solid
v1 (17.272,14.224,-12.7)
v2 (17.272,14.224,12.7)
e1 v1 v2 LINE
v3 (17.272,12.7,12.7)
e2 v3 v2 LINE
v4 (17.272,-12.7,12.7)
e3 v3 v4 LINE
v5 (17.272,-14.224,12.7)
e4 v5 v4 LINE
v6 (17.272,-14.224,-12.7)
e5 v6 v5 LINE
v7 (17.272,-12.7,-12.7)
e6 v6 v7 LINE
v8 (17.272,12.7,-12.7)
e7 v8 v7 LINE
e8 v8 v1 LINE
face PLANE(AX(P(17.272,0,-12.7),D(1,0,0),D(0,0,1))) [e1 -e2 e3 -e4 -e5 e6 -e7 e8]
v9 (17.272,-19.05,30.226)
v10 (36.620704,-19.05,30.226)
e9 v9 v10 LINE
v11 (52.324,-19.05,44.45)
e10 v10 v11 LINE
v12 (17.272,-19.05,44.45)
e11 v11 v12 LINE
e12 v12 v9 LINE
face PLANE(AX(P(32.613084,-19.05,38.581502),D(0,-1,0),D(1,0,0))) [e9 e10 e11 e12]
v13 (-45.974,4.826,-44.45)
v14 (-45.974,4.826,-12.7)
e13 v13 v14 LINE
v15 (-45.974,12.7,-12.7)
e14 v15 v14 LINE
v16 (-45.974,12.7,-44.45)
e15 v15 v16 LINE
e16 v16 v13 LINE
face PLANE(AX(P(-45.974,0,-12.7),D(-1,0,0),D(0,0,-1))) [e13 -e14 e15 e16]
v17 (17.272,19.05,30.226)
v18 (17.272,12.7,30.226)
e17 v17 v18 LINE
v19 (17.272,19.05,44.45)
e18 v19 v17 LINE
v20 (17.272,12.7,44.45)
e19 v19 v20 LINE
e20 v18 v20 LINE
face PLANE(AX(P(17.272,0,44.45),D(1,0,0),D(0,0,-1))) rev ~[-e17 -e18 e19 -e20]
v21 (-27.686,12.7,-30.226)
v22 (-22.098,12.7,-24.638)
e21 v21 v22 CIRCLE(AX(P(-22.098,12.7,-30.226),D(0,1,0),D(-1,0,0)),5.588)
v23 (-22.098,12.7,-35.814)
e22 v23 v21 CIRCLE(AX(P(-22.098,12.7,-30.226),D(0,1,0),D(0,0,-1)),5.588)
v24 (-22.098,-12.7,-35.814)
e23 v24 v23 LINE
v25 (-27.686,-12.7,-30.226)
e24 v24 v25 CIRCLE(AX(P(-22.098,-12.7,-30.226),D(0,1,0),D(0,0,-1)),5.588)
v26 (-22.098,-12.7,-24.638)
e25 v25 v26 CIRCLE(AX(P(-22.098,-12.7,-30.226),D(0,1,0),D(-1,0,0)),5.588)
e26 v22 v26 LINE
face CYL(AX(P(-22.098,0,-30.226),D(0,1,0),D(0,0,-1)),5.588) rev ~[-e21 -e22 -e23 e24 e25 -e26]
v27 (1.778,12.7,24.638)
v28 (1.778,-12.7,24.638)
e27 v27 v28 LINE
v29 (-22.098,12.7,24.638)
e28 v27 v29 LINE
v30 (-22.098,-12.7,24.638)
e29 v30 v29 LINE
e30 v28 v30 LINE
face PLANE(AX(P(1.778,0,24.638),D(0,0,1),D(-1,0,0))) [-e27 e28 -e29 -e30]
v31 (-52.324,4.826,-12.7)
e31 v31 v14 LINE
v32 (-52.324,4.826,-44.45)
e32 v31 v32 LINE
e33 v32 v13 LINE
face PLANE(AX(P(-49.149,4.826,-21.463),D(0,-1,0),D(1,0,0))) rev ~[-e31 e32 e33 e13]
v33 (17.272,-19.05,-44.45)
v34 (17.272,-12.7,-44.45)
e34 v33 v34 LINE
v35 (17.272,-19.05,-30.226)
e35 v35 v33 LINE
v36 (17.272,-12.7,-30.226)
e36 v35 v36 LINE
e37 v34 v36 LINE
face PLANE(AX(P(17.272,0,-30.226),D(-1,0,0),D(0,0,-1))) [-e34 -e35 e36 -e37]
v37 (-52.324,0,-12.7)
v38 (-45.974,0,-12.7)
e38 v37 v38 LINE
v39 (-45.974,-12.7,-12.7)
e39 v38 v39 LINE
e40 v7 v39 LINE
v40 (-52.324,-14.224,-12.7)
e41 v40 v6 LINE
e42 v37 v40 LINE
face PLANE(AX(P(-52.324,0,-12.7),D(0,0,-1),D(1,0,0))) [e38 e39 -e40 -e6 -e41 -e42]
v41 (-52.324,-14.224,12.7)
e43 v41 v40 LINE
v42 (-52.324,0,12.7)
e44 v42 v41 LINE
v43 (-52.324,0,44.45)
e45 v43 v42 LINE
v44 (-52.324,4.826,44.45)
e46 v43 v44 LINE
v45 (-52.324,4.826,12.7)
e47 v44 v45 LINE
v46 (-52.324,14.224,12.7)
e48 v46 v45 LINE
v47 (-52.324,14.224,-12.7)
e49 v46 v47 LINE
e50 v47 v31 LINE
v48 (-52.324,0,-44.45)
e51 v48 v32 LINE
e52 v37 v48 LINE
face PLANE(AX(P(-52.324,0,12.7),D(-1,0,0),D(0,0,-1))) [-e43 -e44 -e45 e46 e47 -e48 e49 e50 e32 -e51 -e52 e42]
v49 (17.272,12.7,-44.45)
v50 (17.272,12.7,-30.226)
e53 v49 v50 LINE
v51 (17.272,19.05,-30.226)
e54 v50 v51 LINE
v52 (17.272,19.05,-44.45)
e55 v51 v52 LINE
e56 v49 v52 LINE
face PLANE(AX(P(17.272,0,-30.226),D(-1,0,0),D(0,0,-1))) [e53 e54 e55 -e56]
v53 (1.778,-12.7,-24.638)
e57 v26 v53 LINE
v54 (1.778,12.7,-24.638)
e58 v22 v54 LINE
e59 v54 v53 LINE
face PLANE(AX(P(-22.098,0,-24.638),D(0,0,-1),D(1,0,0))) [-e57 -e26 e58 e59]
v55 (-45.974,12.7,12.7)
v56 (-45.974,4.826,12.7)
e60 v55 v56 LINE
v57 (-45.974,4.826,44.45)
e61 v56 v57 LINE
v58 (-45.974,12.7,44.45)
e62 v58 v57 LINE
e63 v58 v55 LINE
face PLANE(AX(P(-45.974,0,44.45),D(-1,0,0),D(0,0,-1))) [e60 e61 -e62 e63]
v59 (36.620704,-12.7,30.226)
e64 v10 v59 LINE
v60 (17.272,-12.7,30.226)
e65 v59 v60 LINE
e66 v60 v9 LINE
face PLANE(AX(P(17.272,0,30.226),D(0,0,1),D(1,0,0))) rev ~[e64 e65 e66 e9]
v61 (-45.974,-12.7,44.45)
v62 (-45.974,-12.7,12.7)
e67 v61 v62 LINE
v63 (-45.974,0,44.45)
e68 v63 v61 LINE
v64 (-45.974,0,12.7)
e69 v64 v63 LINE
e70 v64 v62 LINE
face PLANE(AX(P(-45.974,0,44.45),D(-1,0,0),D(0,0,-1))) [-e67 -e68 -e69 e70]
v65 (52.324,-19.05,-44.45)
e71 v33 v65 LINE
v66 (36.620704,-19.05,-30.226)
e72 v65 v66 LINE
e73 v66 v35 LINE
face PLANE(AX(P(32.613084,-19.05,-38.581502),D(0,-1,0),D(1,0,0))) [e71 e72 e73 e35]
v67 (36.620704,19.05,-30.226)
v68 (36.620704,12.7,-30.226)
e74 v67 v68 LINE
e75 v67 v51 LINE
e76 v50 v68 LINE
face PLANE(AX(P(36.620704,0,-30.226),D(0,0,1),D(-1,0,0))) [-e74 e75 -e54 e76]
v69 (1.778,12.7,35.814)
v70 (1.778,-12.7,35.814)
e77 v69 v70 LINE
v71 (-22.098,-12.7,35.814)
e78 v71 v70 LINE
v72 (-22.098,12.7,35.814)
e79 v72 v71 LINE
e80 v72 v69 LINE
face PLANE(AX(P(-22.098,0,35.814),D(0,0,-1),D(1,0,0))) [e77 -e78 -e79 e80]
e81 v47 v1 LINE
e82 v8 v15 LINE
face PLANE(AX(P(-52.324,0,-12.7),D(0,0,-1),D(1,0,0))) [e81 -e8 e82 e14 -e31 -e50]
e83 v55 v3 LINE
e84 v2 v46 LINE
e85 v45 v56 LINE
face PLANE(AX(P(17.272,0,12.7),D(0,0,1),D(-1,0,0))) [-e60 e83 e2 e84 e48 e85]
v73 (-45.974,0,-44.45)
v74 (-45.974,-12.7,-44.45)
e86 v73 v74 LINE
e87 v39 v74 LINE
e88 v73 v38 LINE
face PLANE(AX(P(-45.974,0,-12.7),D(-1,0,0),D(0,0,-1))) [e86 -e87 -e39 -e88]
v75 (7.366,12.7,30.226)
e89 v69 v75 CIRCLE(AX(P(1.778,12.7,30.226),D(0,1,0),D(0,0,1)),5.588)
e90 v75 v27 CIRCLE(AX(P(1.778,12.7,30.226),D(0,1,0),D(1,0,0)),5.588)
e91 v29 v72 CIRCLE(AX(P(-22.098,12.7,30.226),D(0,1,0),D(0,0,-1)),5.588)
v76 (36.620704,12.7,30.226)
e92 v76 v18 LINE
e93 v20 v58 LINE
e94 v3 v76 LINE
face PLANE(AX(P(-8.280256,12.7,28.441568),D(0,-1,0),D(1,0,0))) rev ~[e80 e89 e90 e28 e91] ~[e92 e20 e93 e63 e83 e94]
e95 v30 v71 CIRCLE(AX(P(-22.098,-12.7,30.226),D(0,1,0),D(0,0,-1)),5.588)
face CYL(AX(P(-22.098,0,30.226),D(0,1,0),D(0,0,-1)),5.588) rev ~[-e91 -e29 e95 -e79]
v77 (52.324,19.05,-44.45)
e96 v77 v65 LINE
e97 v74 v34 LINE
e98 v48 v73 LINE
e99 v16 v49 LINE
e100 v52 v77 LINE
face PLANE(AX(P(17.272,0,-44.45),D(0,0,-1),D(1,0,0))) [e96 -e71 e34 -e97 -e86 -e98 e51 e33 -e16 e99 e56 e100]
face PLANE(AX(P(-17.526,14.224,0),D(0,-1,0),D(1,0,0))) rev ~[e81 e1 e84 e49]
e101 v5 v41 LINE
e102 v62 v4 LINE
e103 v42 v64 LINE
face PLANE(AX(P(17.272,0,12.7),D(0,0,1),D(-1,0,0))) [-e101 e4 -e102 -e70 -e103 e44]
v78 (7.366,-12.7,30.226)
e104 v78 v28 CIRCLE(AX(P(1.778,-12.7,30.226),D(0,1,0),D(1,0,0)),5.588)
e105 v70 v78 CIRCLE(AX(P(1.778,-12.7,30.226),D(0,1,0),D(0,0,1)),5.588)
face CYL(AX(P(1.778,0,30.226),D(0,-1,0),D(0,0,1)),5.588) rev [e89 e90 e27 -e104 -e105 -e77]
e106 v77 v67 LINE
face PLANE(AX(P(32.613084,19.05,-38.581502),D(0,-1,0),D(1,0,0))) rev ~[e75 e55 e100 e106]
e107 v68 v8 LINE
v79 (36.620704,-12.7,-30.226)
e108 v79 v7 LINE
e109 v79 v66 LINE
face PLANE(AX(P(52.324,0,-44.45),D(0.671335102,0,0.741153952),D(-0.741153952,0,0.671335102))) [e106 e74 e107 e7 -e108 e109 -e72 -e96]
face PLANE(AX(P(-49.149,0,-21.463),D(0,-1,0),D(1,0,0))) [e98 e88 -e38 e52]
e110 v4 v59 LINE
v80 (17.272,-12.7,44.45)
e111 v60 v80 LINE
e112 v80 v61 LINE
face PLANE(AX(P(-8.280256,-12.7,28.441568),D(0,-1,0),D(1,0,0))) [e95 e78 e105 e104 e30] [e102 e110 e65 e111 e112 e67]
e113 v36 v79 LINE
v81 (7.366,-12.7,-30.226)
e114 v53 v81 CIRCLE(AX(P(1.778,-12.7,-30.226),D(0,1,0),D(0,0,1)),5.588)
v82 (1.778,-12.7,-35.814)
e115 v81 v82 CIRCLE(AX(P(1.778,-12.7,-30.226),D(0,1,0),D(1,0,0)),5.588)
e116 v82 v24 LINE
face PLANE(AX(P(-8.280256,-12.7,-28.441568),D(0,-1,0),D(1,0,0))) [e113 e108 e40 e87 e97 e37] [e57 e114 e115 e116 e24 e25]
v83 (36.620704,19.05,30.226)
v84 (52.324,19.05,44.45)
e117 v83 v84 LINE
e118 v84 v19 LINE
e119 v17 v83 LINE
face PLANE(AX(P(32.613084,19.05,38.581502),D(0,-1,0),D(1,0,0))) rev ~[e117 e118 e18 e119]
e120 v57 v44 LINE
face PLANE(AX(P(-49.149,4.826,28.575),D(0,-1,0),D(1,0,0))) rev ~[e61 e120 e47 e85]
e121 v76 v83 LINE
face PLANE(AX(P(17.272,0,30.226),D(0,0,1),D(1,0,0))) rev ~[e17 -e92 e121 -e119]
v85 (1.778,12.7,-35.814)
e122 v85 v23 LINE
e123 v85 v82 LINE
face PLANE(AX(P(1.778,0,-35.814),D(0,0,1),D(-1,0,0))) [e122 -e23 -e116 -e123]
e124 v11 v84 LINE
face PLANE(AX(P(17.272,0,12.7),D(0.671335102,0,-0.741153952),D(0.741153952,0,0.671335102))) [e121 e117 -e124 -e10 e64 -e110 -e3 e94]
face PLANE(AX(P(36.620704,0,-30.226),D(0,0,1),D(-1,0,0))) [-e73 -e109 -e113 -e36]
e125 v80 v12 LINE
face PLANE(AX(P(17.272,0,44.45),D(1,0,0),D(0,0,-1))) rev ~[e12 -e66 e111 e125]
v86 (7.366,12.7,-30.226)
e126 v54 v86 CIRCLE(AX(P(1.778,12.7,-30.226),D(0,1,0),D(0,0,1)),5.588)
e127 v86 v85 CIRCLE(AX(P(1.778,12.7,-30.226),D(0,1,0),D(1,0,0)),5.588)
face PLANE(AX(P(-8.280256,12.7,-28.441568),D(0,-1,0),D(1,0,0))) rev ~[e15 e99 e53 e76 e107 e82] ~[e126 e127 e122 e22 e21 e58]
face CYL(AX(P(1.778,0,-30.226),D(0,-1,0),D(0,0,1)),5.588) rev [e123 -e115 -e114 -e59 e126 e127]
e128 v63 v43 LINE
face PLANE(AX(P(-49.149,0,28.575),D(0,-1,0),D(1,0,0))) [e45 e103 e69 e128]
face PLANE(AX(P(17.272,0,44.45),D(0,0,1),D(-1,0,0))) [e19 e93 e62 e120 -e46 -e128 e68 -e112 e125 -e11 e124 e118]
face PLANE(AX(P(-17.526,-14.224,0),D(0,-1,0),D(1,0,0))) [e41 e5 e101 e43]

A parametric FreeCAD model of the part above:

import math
import FreeCAD as App
import Part
import Sketcher
Q = App.Units.Quantity

doc = App.newDocument("Part")
body = doc.addObject("PartDesign::Body", "Body")

# Sketch on XZ plane
sketch1 = doc.addObject("Sketcher::SketchObject", "Sketch")
body.addObject(sketch1)
sketch1.AttachmentSupport = (doc.XZ_Plane, [""])
sketch1.MapMode = "FlatFace"
sketch1.addGeometry([
    Part.LineSegment(App.Vector(17, 13, 0), App.Vector(-52, 13, 0)),
    Part.LineSegment(App.Vector(-52, 13, 0), App.Vector(-52, -13, 0)),
    Part.LineSegment(App.Vector(-52, -13, 0), App.Vector(17, -13, 0)),
    Part.LineSegment(App.Vector(17, -13, 0), App.Vector(17, 13, 0)),
], False)
sketch1.addConstraint([
    Sketcher.Constraint("Coincident", 0, 2, 1, 1),
    Sketcher.Constraint("Coincident", 1, 2, 2, 1),
    Sketcher.Constraint("Coincident", 2, 2, 3, 1),
    Sketcher.Constraint("Coincident", 3, 2, 0, 1),
    Sketcher.Constraint("Horizontal", 0),
    Sketcher.Constraint("Vertical", 1),
    Sketcher.Constraint("Horizontal", 2),
    Sketcher.Constraint("Vertical", 3),
    Sketcher.Constraint("DistanceY", 1, 2, 1, 1, Q("1 in")),
    Sketcher.Constraint("DistanceX", 0, 2, 0, 1, Q("2.74 in")),
    Sketcher.Constraint("DistanceY", -1, 1, 0, 2, Q("0.5 in")),
    Sketcher.Constraint("DistanceX", 0, 2, -1, 1, Q("2.06 in")),
])
pad1 = doc.addObject("PartDesign::Pad", "Pad")
body.addObject(pad1)
pad1.Profile = sketch1
pad1.Length = Q("1.12 in")
pad1.Midplane = True

# Sketch on XZ plane
sketch2 = doc.addObject("Sketcher::SketchObject", "Sketch001")
body.addObject(sketch2)
sketch2.AttachmentSupport = (doc.XZ_Plane, [""])
sketch2.MapMode = "FlatFace"
sketch2.addGeometry([
    Part.LineSegment(App.Vector(-46, 44, 0), App.Vector(-52, 44, 0)),  # 0
    Part.LineSegment(App.Vector(-52, 44, 0), App.Vector(-52, 13, 0)),  # 1
    Part.LineSegment(App.Vector(-52, 13, 0), App.Vector(-46, 13, 0)),  # 2
    Part.LineSegment(App.Vector(-46, 13, 0), App.Vector(-46, 44, 0)),  # 3
    Part.LineSegment(App.Vector(-52, -13, 0), App.Vector(-52, -44, 0)),  # 4
    Part.LineSegment(App.Vector(-52, -44, 0), App.Vector(-46, -44, 0)),  # 5
    Part.LineSegment(App.Vector(-46, -44, 0), App.Vector(-46, -13, 0)),  # 6
    Part.LineSegment(App.Vector(-46, -13, 0), App.Vector(-52, -13, 0)),  # 7
], False)
sketch2.addConstraint([
    Sketcher.Constraint("Coincident", 0, 2, 1, 1),
    Sketcher.Constraint("Coincident", 1, 2, 2, 1),
    Sketcher.Constraint("Coincident", 2, 2, 3, 1),
    Sketcher.Constraint("Coincident", 3, 2, 0, 1),
    Sketcher.Constraint("Coincident", 4, 2, 5, 1),
    Sketcher.Constraint("Coincident", 5, 2, 6, 1),
    Sketcher.Constraint("Coincident", 6, 2, 7, 1),
    Sketcher.Constraint("Coincident", 7, 2, 4, 1),
    Sketcher.Constraint("Horizontal", 0),
    Sketcher.Constraint("Vertical", 1),
    Sketcher.Constraint("Horizontal", 2),
    Sketcher.Constraint("Vertical", 3),
    Sketcher.Constraint("Vertical", 4),
    Sketcher.Constraint("Horizontal", 5),
    Sketcher.Constraint("Vertical", 6),
    Sketcher.Constraint("Horizontal", 7),
    Sketcher.Constraint("Symmetric", 0, 2, 4, 2, -1),
    Sketcher.Constraint("Symmetric", 2, 2, 6, 2, -1),
    Sketcher.Constraint("DistanceY", 6, 2, 2, 2, Q("1 in")),
    Sketcher.Constraint("DistanceX", 0, 2, 0, 1, Q("0.25 in")),
    Sketcher.Constraint("DistanceY", 1, 2, 1, 1, Q("1.25 in")),
    Sketcher.Constraint("DistanceX", 0, 2, -1, 1, Q("2.06 in")),
])
pad2 = doc.addObject("PartDesign::Pad", "Pad001")
body.addObject(pad2)
pad2.Profile = sketch2
pad2.Length = Q("0.19 in")
pad2.Reversed = True

# Sketch on XZ plane
sketch3 = doc.addObject("Sketcher::SketchObject", "Sketch002")
body.addObject(sketch3)
sketch3.AttachmentSupport = (doc.XZ_Plane, [""])
sketch3.MapMode = "FlatFace"
sketch3.addGeometry([
    Part.LineSegment(App.Vector(17, 44, 0), App.Vector(-46, 44, 0)),  # 0
    Part.LineSegment(App.Vector(-46, 44, 0), App.Vector(-46, 13, 0)),  # 1
    Part.LineSegment(App.Vector(-46, 13, 0), App.Vector(17, 13, 0)),  # 2
    Part.LineSegment(App.Vector(17, 13, 0), App.Vector(37, 30, 0)),  # 3
    Part.LineSegment(App.Vector(37, 30, 0), App.Vector(17, 30, 0)),  # 4
    Part.LineSegment(App.Vector(17, 30, 0), App.Vector(17, 44, 0)),  # 5
    Part.LineSegment(App.Vector(2, 25, 0), App.Vector(-22, 25, 0)),  # 6
    Part.ArcOfCircle(Part.Circle(App.Vector(-22, 30, 0), App.Vector(0, 0, 1), 6), math.radians(90), math.radians(270)),  # 7
    Part.LineSegment(App.Vector(-22, 36, 0), App.Vector(2, 36, 0)),  # 8
    Part.ArcOfCircle(Part.Circle(App.Vector(2, 30, 0), App.Vector(0, 0, 1), 6), math.radians(0), math.radians(90)),  # 9
    Part.ArcOfCircle(Part.Circle(App.Vector(2, 30, 0), App.Vector(0, 0, 1), 6), math.radians(-90), math.radians(0)),  # 10
], False)
sketch3.addConstraint([
    Sketcher.Constraint("Coincident", 0, 2, 1, 1),
    Sketcher.Constraint("Coincident", 1, 2, 2, 1),
    Sketcher.Constraint("Coincident", 2, 2, 3, 1),
    Sketcher.Constraint("Coincident", 3, 2, 4, 1),
    Sketcher.Constraint("Coincident", 4, 2, 5, 1),
    Sketcher.Constraint("Coincident", 5, 2, 0, 1),
    Sketcher.Constraint("Tangent", 6, 2, 7, 2),
    Sketcher.Constraint("Tangent", 7, 1, 8, 1),
    Sketcher.Constraint("Tangent", 8, 2, 9, 2),
    Sketcher.Constraint("Tangent", 9, 1, 10, 2),
    Sketcher.Constraint("Tangent", 10, 1, 6, 1),
    Sketcher.Constraint("Horizontal", 0),
    Sketcher.Constraint("Vertical", 1),
    Sketcher.Constraint("Horizontal", 2),
    Sketcher.Constraint("Horizontal", 4),
    Sketcher.Constraint("Vertical", 5),
    Sketcher.Constraint("Horizontal", 6),
    Sketcher.Constraint("Horizontal", 8),
    Sketcher.Constraint("Equal", 7, 9),
    Sketcher.Constraint("Horizontal", 10, 3, 3, 2),
    Sketcher.Constraint("Horizontal", 4, 2, 9, 1),
    Sketcher.Constraint("Vertical", 2, 2, 4, 2),
    Sketcher.Constraint("Radius", 7, Q("0.22 in")),
    Sketcher.Constraint("DistanceX", 0, 2, 0, 1, Q("2.49 in")),
    Sketcher.Constraint("DistanceX", 6, 2, 6, 1, Q("0.94 in")),
    Sketcher.Constraint("DistanceY", 1, 2, 1, 1, Q("1.25 in")),
    Sketcher.Constraint("DistanceY", 5, 1, 5, 2, Q("0.56 in")),
    Sketcher.Constraint("DistanceY", -1, 1, 1, 2, Q("0.5 in")),
    Sketcher.Constraint("DistanceX", 7, 3, -1, 1, Q("0.87 in")),
    Sketcher.Constraint("DistanceX", 0, 2, -1, 1, Q("1.81 in")),
    Sketcher.Constraint("DistanceX", 4, 2, 4, 1, Q("19.348704 mm")),
])
pad3 = doc.addObject("PartDesign::Pad", "Pad002")
body.addObject(pad3)
pad3.Profile = sketch3
pad3.Length = Q("1 in")
pad3.Midplane = True

# Sketch on XZ plane
sketch4 = doc.addObject("Sketcher::SketchObject", "Sketch003")
body.addObject(sketch4)
sketch4.AttachmentSupport = (doc.XZ_Plane, [""])
sketch4.MapMode = "FlatFace"
sketch4.addGeometry([
    Part.LineSegment(App.Vector(37, -30, 0), App.Vector(17, -13, 0)),  # 0
    Part.LineSegment(App.Vector(17, -13, 0), App.Vector(-46, -13, 0)),  # 1
    Part.LineSegment(App.Vector(-46, -13, 0), App.Vector(-46, -44, 0)),  # 2
    Part.LineSegment(App.Vector(-46, -44, 0), App.Vector(17, -44, 0)),  # 3
    Part.LineSegment(App.Vector(17, -44, 0), App.Vector(17, -30, 0)),  # 4
    Part.LineSegment(App.Vector(17, -30, 0), App.Vector(37, -30, 0)),  # 5
    Part.LineSegment(App.Vector(2, -36, 0), App.Vector(-22, -36, 0)),  # 6
    Part.ArcOfCircle(Part.Circle(App.Vector(-22, -30, 0), App.Vector(0, 0, 1), 6), math.radians(180), math.radians(270)),  # 7
    Part.ArcOfCircle(Part.Circle(App.Vector(-22, -30, 0), App.Vector(0, 0, 1), 6), math.radians(90), math.radians(180)),  # 8
    Part.LineSegment(App.Vector(-22, -25, 0), App.Vector(2, -25, 0)),  # 9
    Part.ArcOfCircle(Part.Circle(App.Vector(2, -30, 0), App.Vector(0, 0, 1), 6), math.radians(0), math.radians(90)),  # 10
    Part.ArcOfCircle(Part.Circle(App.Vector(2, -30, 0), App.Vector(0, 0, 1), 6), math.radians(-90), math.radians(0)),  # 11
], False)
sketch4.addConstraint([
    Sketcher.Constraint("Coincident", 0, 2, 1, 1),
    Sketcher.Constraint("Coincident", 1, 2, 2, 1),
    Sketcher.Constraint("Coincident", 2, 2, 3, 1),
    Sketcher.Constraint("Coincident", 3, 2, 4, 1),
    Sketcher.Constraint("Coincident", 4, 2, 5, 1),
    Sketcher.Constraint("Coincident", 5, 2, 0, 1),
    Sketcher.Constraint("Tangent", 6, 2, 7, 2),
    Sketcher.Constraint("Tangent", 7, 1, 8, 2),
    Sketcher.Constraint("Tangent", 8, 1, 9, 1),
    Sketcher.Constraint("Tangent", 9, 2, 10, 2),
    Sketcher.Constraint("Tangent", 10, 1, 11, 2),
    Sketcher.Constraint("Tangent", 11, 1, 6, 1),
    Sketcher.Constraint("Horizontal", 1),
    Sketcher.Constraint("Vertical", 2),
    Sketcher.Constraint("Horizontal", 3),
    Sketcher.Constraint("Vertical", 4),
    Sketcher.Constraint("Horizontal", 5),
    Sketcher.Constraint("Horizontal", 6),
    Sketcher.Constraint("Horizontal", 9),
    Sketcher.Constraint("Equal", 7, 8),
    Sketcher.Constraint("Equal", 8, 10),
    Sketcher.Constraint("Horizontal", 11, 3, 4, 2),
    Sketcher.Constraint("Horizontal", 5, 2, 7, 1),
    Sketcher.Constraint("Horizontal", 7, 1, 10, 1),
    Sketcher.Constraint("Vertical", 0, 2, 3, 2),
    Sketcher.Constraint("Radius", 7, Q("0.22 in")),
    Sketcher.Constraint("DistanceX", 1, 2, 1, 1, Q("2.49 in")),
    Sketcher.Constraint("DistanceX", 6, 2, 6, 1, Q("0.94 in")),
    Sketcher.Constraint("DistanceY", 2, 2, 2, 1, Q("1.25 in")),
    Sketcher.Constraint("DistanceY", 4, 1, 4, 2, Q("0.56 in")),
    Sketcher.Constraint("DistanceY", 0, 2, -1, 1, Q("0.5 in")),
    Sketcher.Constraint("DistanceX", 7, 3, -1, 1, Q("0.87 in")),
    Sketcher.Constraint("DistanceX", -1, 1, 0, 2, Q("0.68 in")),
    Sketcher.Constraint("DistanceX", 5, 1, 5, 2, Q("19.348704 mm")),
])
pad4 = doc.addObject("PartDesign::Pad", "Pad003")
body.addObject(pad4)
pad4.Profile = sketch4
pad4.Length = Q("1 in")
pad4.Midplane = True

# Sketch on XZ plane
sketch5 = doc.addObject("Sketcher::SketchObject", "Sketch004")
body.addObject(sketch5)
sketch5.AttachmentSupport = (doc.XZ_Plane, [""])
sketch5.MapMode = "FlatFace"
sketch5.addGeometry([
    Part.LineSegment(App.Vector(52, 44, 0), App.Vector(17, 44, 0)),  # 0
    Part.LineSegment(App.Vector(17, 44, 0), App.Vector(17, 30, 0)),  # 1
    Part.LineSegment(App.Vector(17, 30, 0), App.Vector(37, 30, 0)),  # 2
    Part.LineSegment(App.Vector(37, 30, 0), App.Vector(52, 44, 0)),  # 3
    Part.LineSegment(App.Vector(17, -44, 0), App.Vector(52, -44, 0)),  # 4
    Part.LineSegment(App.Vector(52, -44, 0), App.Vector(37, -30, 0)),  # 5
    Part.LineSegment(App.Vector(37, -30, 0), App.Vector(17, -30, 0)),  # 6
    Part.LineSegment(App.Vector(17, -30, 0), App.Vector(17, -44, 0)),  # 7
], False)
sketch5.addConstraint([
    Sketcher.Constraint("Coincident", 0, 2, 1, 1),
    Sketcher.Constraint("Coincident", 1, 2, 2, 1),
    Sketcher.Constraint("Coincident", 2, 2, 3, 1),
    Sketcher.Constraint("Coincident", 3, 2, 0, 1),
    Sketcher.Constraint("Coincident", 4, 2, 5, 1),
    Sketcher.Constraint("Coincident", 5, 2, 6, 1),
    Sketcher.Constraint("Coincident", 6, 2, 7, 1),
    Sketcher.Constraint("Coincident", 7, 2, 4, 1),
    Sketcher.Constraint("Horizontal", 0),
    Sketcher.Constraint("Vertical", 1),
    Sketcher.Constraint("Horizontal", 2),
    Sketcher.Constraint("Horizontal", 4),
    Sketcher.Constraint("Horizontal", 6),
    Sketcher.Constraint("Vertical", 7),
    Sketcher.Constraint("Symmetric", 3, 2, 4, 2, -1),
    Sketcher.Constraint("Symmetric", 2, 2, 5, 2, -1),
    Sketcher.Constraint("Vertical", 1, 2, 6, 2),
    Sketcher.Constraint("DistanceX", 0, 2, 0, 1, Q("1.38 in")),
    Sketcher.Constraint("DistanceY", 1, 2, 1, 1, Q("0.56 in")),
    Sketcher.Constraint("DistanceY", 4, 2, 3, 2, Q("3.5 in")),
    Sketcher.Constraint("DistanceX", -1, 1, 0, 2, Q("0.68 in")),
    Sketcher.Constraint("Distance", 3, Q("21.18763 mm")),
])
pad5 = doc.addObject("PartDesign::Pad", "Pad004")
body.addObject(pad5)
pad5.Profile = sketch5
pad5.Length = Q("1.5 in")
pad5.Midplane = True

doc.recompute()
